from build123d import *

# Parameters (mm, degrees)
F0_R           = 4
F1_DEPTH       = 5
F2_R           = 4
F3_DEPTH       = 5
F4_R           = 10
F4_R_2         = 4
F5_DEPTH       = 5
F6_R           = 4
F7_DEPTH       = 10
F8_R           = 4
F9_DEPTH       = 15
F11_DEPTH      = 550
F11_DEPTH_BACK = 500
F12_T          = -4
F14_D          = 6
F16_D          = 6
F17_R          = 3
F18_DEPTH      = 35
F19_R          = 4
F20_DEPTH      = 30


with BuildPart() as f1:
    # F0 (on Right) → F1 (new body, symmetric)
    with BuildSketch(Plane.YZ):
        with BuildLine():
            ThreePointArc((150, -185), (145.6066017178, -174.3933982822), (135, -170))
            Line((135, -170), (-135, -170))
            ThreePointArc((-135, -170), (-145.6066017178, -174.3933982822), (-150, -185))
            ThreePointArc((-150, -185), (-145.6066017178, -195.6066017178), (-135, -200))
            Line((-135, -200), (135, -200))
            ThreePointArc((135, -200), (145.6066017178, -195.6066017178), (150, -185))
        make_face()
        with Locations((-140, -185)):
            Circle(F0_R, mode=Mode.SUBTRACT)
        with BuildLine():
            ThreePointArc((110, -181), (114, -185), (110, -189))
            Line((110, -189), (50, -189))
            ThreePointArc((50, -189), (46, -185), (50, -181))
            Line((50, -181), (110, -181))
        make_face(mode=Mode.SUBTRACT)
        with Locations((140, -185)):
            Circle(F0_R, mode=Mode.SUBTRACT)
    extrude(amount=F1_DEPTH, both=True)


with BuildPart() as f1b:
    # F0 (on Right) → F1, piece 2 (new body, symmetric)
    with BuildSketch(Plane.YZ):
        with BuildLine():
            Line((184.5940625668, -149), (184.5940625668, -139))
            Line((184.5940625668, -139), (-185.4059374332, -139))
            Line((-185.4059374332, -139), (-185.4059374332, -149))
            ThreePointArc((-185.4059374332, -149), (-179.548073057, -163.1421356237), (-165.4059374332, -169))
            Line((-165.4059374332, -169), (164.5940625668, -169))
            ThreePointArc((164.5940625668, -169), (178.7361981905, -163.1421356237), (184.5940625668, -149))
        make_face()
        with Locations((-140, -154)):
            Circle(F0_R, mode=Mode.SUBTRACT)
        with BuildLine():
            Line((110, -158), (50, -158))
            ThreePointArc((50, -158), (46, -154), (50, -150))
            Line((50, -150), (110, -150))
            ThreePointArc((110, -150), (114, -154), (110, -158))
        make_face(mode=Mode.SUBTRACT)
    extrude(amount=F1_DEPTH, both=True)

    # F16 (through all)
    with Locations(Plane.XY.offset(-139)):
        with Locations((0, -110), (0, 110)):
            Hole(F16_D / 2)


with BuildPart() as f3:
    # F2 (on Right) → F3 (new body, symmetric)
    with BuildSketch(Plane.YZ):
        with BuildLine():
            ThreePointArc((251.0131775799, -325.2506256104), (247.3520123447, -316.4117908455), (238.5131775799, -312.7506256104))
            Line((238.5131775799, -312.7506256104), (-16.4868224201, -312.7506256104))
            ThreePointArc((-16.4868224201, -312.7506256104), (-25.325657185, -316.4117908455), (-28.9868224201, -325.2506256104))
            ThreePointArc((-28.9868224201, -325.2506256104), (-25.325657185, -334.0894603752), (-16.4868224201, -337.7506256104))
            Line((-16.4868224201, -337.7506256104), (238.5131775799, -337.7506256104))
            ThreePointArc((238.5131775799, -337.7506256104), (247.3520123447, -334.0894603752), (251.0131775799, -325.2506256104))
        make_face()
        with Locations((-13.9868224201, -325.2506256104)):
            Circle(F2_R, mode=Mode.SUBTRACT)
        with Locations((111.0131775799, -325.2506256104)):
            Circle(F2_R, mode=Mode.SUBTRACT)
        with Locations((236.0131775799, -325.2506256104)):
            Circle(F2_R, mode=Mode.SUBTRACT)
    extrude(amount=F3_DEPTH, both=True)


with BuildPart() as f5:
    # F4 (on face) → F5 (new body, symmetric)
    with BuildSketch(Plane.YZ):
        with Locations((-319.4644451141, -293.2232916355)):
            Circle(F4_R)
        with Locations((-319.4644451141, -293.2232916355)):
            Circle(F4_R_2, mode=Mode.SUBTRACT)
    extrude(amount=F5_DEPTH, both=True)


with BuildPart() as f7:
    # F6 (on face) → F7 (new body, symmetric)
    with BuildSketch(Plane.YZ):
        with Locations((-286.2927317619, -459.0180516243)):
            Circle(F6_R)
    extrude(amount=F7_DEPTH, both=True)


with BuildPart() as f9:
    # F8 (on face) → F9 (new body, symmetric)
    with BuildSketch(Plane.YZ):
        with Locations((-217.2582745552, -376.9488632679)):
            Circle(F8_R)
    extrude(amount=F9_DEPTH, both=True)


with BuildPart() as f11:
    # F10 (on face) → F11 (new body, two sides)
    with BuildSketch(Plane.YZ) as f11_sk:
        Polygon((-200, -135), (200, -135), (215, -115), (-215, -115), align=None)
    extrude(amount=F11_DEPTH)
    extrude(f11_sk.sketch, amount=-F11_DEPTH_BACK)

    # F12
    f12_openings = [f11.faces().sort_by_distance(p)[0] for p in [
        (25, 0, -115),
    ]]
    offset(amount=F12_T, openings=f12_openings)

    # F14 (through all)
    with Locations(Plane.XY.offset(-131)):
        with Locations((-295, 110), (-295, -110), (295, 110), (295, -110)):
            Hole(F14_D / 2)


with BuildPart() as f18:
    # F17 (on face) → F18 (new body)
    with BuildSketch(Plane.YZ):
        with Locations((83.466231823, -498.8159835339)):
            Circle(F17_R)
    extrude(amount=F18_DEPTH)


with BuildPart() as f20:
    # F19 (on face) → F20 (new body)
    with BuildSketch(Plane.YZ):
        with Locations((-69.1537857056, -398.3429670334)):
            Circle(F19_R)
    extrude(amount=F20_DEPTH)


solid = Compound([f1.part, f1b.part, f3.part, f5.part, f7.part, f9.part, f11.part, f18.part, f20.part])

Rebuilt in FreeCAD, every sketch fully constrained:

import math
import FreeCAD as App
import Part
import Sketcher

V = App.Vector
Q = App.Units.Quantity


def faces_at(feature, points):
    """Names of the faces that lie closest to the given points."""
    faces = feature.Shape.Faces
    near = lambda p: min(range(len(faces)), key=lambda i: faces[i].distToShape(Part.Vertex(*p))[0])
    return sorted({f"Face{near(p) + 1}" for p in points})


def add_polygon(sketch, points):
    """Adds a closed chain of lines whose ends are joined by coincident constraints."""
    first, n = sketch.GeometryCount, len(points)
    for a, b in zip(points, points[1:] + points[:1]):
        sketch.addGeometry(Part.LineSegment(App.Vector(*a, 0), App.Vector(*b, 0)), False)
    for i in range(n):
        sketch.addConstraint(Sketcher.Constraint("Coincident", first + i, 2, first + (i + 1) % n, 1))

doc = App.newDocument("Part")
params = doc.addObject("Spreadsheet::Sheet", "Params")
for row, (alias, value) in enumerate([
    ("sketch1_diameter", "8 mm"),
    ("sketch1_radius", "15 mm"),
    ("sketch1_width", "270 mm"),
    ("sketch1_width2", "60 mm"),
    ("pad1_length", "10 mm"),
    ("sketch2_diameter", "8 mm"),
    ("sketch2_radius", "20 mm"),
    ("sketch2_width", "370 mm"),
    ("sketch2_width2", "60 mm"),
    ("sketch2_height", "10 mm"),
    ("pad2_length", "10 mm"),
    ("sketch3_diameter", "6 mm"),
    ("hole_diameter", "6 mm"),
    ("sketch4_diameter", "8 mm"),
    ("sketch4_radius", "12.5 mm"),
    ("sketch4_width", "255 mm"),
    ("pad3_length", "10 mm"),
    ("sketch5_diameter", "20 mm"),
    ("sketch5_diameter2", "8 mm"),
    ("pad4_length", "10 mm"),
    ("sketch6_diameter", "8 mm"),
    ("pad5_length", "20 mm"),
    ("sketch7_diameter", "8 mm"),
    ("pad6_length", "30 mm"),
    ("sketch8_width", "400 mm"),
    ("sketch8_width2", "430 mm"),
    ("sketch8_length", "25 mm"),
    ("pad7_length", "550 mm"),
    ("pad7_length2", "500 mm"),
    ("thickness_wall", "4 mm"),
    ("sketch9_diameter", "6 mm"),
    ("hole2_diameter", "6 mm"),
    ("sketch10_diameter", "6 mm"),
    ("pad8_length", "35 mm"),
    ("sketch11_diameter", "8 mm"),
    ("pad9_length", "30 mm"),
], start=1):
    params.set(f"A{row}", alias)
    params.set(f"B{row}", "=" + value)
    params.setAlias(f"B{row}", alias)

body = doc.addObject("PartDesign::Body", "Body")

sketch1 = body.newObject("Sketcher::SketchObject", "Sketch")
sketch1.AttachmentSupport = (doc.getObject("YZ_Plane"), [""])
sketch1.MapMode = "FlatFace"
sketch1.addGeometry([
    Part.LineSegment(V(135, -170, 0), V(-135, -170, 0)),
    Part.ArcOfCircle(Part.Circle(V(-135, -185, 0), V(0, 0, 1), 15), math.radians(90), math.radians(270)),
    Part.LineSegment(V(-135, -200, 0), V(135, -200, 0)),
    Part.ArcOfCircle(Part.Circle(V(135, -185, 0), V(0, 0, 1), 15), math.radians(-90), math.radians(90)),
    Part.Circle(V(-140, -185, 0), V(0, 0, 1), 4),
    Part.LineSegment(V(50, -181, 0), V(110, -181, 0)),
    Part.ArcOfCircle(Part.Circle(V(110, -185, 0), V(0, 0, 1), 4), math.radians(-90), math.radians(90)),
    Part.LineSegment(V(110, -189, 0), V(50, -189, 0)),
    Part.ArcOfCircle(Part.Circle(V(50, -185, 0), V(0, 0, 1), 4), math.radians(90), math.radians(270)),
    Part.Circle(V(140, -185, 0), V(0, 0, 1), 4),
], False)
sketch1.addConstraint([
    Sketcher.Constraint("Tangent", 0, 2, 1, 1),
    Sketcher.Constraint("Tangent", 1, 2, 2, 1),
    Sketcher.Constraint("Tangent", 2, 2, 3, 1),
    Sketcher.Constraint("Tangent", 3, 2, 0, 1),
    Sketcher.Constraint("Tangent", 5, 2, 6, 2),
    Sketcher.Constraint("Tangent", 6, 1, 7, 1),
    Sketcher.Constraint("Tangent", 7, 2, 8, 2),
    Sketcher.Constraint("Tangent", 8, 1, 5, 1),
    Sketcher.Constraint("Horizontal", 0),
    Sketcher.Constraint("Horizontal", 2),
    Sketcher.Constraint("Horizontal", 5),
    Sketcher.Constraint("Horizontal", 7),
    Sketcher.Constraint("Equal", 4, 6),
    Sketcher.Constraint("Equal", 8, 9),
    Sketcher.Constraint("Symmetric", 4, 3, 9, 3, -2),
    Sketcher.Constraint("Horizontal", 3, 3, 4, 3),
    Sketcher.Constraint("Horizontal", 4, 3, 6, 3),
    Sketcher.Constraint("Diameter", 4, Q("8 mm")),
    Sketcher.Constraint("Radius", 1, Q("15 mm")),
    Sketcher.Constraint("DistanceX", 0, 2, 0, 1, Q("270 mm")),
    Sketcher.Constraint("DistanceX", 5, 1, 5, 2, Q("60 mm")),
    Sketcher.Constraint("DistanceX", 1, 3, -1, 1, Q("135 mm")),
    Sketcher.Constraint("DistanceY", 1, 3, -1, 1, Q("185 mm")),
    Sketcher.Constraint("DistanceX", 4, 3, -1, 1, Q("140 mm")),
    Sketcher.Constraint("DistanceX", -1, 1, 6, 3, Q("110 mm")),
])
sketch1.setExpression("Constraints[17]", "Params.sketch1_diameter")
sketch1.setExpression("Constraints[18]", "Params.sketch1_radius")
sketch1.setExpression("Constraints[19]", "Params.sketch1_width")
sketch1.setExpression("Constraints[20]", "Params.sketch1_width2")
pad1 = body.newObject("PartDesign::Pad", "Pad")
pad1.Profile = sketch1
pad1.setExpression("Length", "Params.pad1_length")
pad1.Midplane = True
body2 = doc.addObject("PartDesign::Body", "Body001")

sketch2 = body2.newObject("Sketcher::SketchObject", "Sketch001")
sketch2.AttachmentSupport = (doc.getObject("YZ_Plane001"), [""])
sketch2.MapMode = "FlatFace"
sketch2.addGeometry([
    Part.LineSegment(V(184.6, -149, 0), V(184.6, -139, 0)),
    Part.LineSegment(V(184.6, -139, 0), V(-185.4, -139, 0)),
    Part.LineSegment(V(-185.4, -139, 0), V(-185.4, -149, 0)),
    Part.ArcOfCircle(Part.Circle(V(-165.4, -149, 0), V(0, 0, 1), 20), math.radians(180), math.radians(270)),
    Part.LineSegment(V(-165.4, -169, 0), V(164.6, -169, 0)),
    Part.ArcOfCircle(Part.Circle(V(164.6, -149, 0), V(0, 0, 1), 20), math.radians(-90), math.radians(0)),
    Part.Circle(V(-140, -154, 0), V(0, 0, 1), 4),
    Part.ArcOfCircle(Part.Circle(V(110, -154, 0), V(0, 0, 1), 4), math.radians(-90), math.radians(90)),
    Part.LineSegment(V(110, -158, 0), V(50, -158, 0)),
    Part.ArcOfCircle(Part.Circle(V(50, -154, 0), V(0, 0, 1), 4), math.radians(90), math.radians(270)),
    Part.LineSegment(V(50, -150, 0), V(110, -150, 0)),
], False)
sketch2.addConstraint([
    Sketcher.Constraint("Coincident", 0, 2, 1, 1),
    Sketcher.Constraint("Coincident", 1, 2, 2, 1),
    Sketcher.Constraint("Tangent", 2, 2, 3, 1),
    Sketcher.Constraint("Tangent", 3, 2, 4, 1),
    Sketcher.Constraint("Tangent", 4, 2, 5, 1),
    Sketcher.Constraint("Tangent", 5, 2, 0, 1),
    Sketcher.Constraint("Tangent", 7, 1, 8, 1),
    Sketcher.Constraint("Tangent", 8, 2, 9, 2),
    Sketcher.Constraint("Tangent", 9, 1, 10, 1),
    Sketcher.Constraint("Tangent", 10, 2, 7, 2),
    Sketcher.Constraint("Vertical", 0),
    Sketcher.Constraint("Horizontal", 1),
    Sketcher.Constraint("Vertical", 2),
    Sketcher.Constraint("Horizontal", 4),
    Sketcher.Constraint("Horizontal", 8),
    Sketcher.Constraint("Horizontal", 10),
    Sketcher.Constraint("Equal", 3, 5),
    Sketcher.Constraint("Equal", 6, 7),
    Sketcher.Constraint("Horizontal", 6, 3, 7, 3),
    Sketcher.Constraint("Diameter", 6, Q("8 mm")),
    Sketcher.Constraint("Radius", 3, Q("20 mm")),
    Sketcher.Constraint("DistanceX", 1, 2, 1, 1, Q("370 mm")),
    Sketcher.Constraint("DistanceX", 8, 2, 8, 1, Q("60 mm")),
    Sketcher.Constraint("DistanceY", 0, 1, 0, 2, Q("10 mm")),
    Sketcher.Constraint("DistanceY", 3, 3, -1, 1, Q("149 mm")),
    Sketcher.Constraint("DistanceX", 6, 3, -1, 1, Q("140 mm")),
    Sketcher.Constraint("DistanceY", 6, 3, -1, 1, Q("154 mm")),
    Sketcher.Constraint("DistanceX", -1, 1, 7, 3, Q("110 mm")),
    Sketcher.Constraint("DistanceX", 3, 3, -1, 1, Q("165.405937 mm")),
])
sketch2.setExpression("Constraints[19]", "Params.sketch2_diameter")
sketch2.setExpression("Constraints[20]", "Params.sketch2_radius")
sketch2.setExpression("Constraints[21]", "Params.sketch2_width")
sketch2.setExpression("Constraints[22]", "Params.sketch2_width2")
sketch2.setExpression("Constraints[23]", "Params.sketch2_height")
pad2 = body2.newObject("PartDesign::Pad", "Pad001")
pad2.Profile = sketch2
pad2.setExpression("Length", "Params.pad2_length")
pad2.Midplane = True

sketch3 = body2.newObject("Sketcher::SketchObject", "Sketch002")
sketch3.AttachmentSupport = (doc.getObject("XY_Plane001"), [""])
sketch3.MapMode = "FlatFace"
sketch3.AttachmentOffset = App.Placement(V(0, 0, -139), App.Rotation())
sketch3.addGeometry([
    Part.Circle(V(0, -110, 0), V(0, 0, 1), 3),
    Part.Circle(V(0, 110, 0), V(0, 0, 1), 3),
], False)
sketch3.addConstraint([
    Sketcher.Constraint("Equal", 0, 1),
    Sketcher.Constraint("Symmetric", 0, 3, 1, 3, -1, 1),
    Sketcher.Constraint("PointOnObject", 0, 3, -2),
    Sketcher.Constraint("Diameter", 0, Q("6 mm")),
    Sketcher.Constraint("DistanceY", 0, 3, -1, 1, Q("110 mm")),
])
sketch3.setExpression("Constraints[3]", "Params.sketch3_diameter")
doc.recompute()
hole = body2.newObject("PartDesign::Hole", "Hole")
hole.Profile = sketch3
hole.ThreadType = "None"
hole.setExpression("Diameter", "Params.hole_diameter")
hole.DepthType = "ThroughAll"
body3 = doc.addObject("PartDesign::Body", "Body002")

sketch4 = body3.newObject("Sketcher::SketchObject", "Sketch003")
sketch4.AttachmentSupport = (doc.getObject("YZ_Plane002"), [""])
sketch4.MapMode = "FlatFace"
sketch4.addGeometry([
    Part.ArcOfCircle(Part.Circle(V(238.5, -325.3, 0), V(0, 0, 1), 12.5), math.radians(0), math.radians(90)),
    Part.LineSegment(V(238.5, -312.8, 0), V(-16.5, -312.8, 0)),
    Part.ArcOfCircle(Part.Circle(V(-16.5, -325.3, 0), V(0, 0, 1), 12.5), math.radians(90), math.radians(180)),
    Part.ArcOfCircle(Part.Circle(V(-16.5, -325.3, 0), V(0, 0, 1), 12.5), math.radians(180), math.radians(270)),
    Part.LineSegment(V(-16.5, -337.8, 0), V(238.5, -337.8, 0)),
    Part.ArcOfCircle(Part.Circle(V(238.5, -325.3, 0), V(0, 0, 1), 12.5), math.radians(-90), math.radians(0)),
    Part.Circle(V(-14, -325.3, 0), V(0, 0, 1), 4),
    Part.Circle(V(111, -325.3, 0), V(0, 0, 1), 4),
    Part.Circle(V(236, -325.3, 0), V(0, 0, 1), 4),
], False)
sketch4.addConstraint([
    Sketcher.Constraint("Tangent", 0, 2, 1, 1),
    Sketcher.Constraint("Tangent", 1, 2, 2, 1),
    Sketcher.Constraint("Tangent", 2, 2, 3, 1),
    Sketcher.Constraint("Tangent", 3, 2, 4, 1),
    Sketcher.Constraint("Tangent", 4, 2, 5, 1),
    Sketcher.Constraint("Tangent", 5, 2, 0, 1),
    Sketcher.Constraint("Horizontal", 1),
    Sketcher.Constraint("Horizontal", 4),
    Sketcher.Constraint("Equal", 0, 2),
    Sketcher.Constraint("Equal", 2, 3),
    Sketcher.Constraint("Equal", 6, 7),
    Sketcher.Constraint("Equal", 7, 8),
    Sketcher.Constraint("Horizontal", 5, 3, 6, 3),
    Sketcher.Constraint("Horizontal", 6, 3, 7, 3),
    Sketcher.Constraint("Horizontal", 7, 3, 8, 3),
    Sketcher.Constraint("Horizontal", 8, 3, 2, 2),
    Sketcher.Constraint("Horizontal", 2, 2, 5, 2),
    Sketcher.Constraint("Diameter", 6, Q("8 mm")),
    Sketcher.Constraint("Radius", 0, Q("12.5 mm")),
    Sketcher.Constraint("DistanceX", 1, 2, 1, 1, Q("255 mm")),
    Sketcher.Constraint("DistanceX", 6, 3, 7, 3, Q("125 mm")),
    Sketcher.Constraint("DistanceX", 7, 3, 8, 3, Q("125 mm")),
    Sketcher.Constraint("DistanceX", 2, 2, 6, 3, Q("15 mm")),
    Sketcher.Constraint("DistanceX", -1, 1, 0, 3, Q("238.513178 mm")),
    Sketcher.Constraint("DistanceY", 0, 3, -1, 1, Q("325.250626 mm")),
])
sketch4.setExpression("Constraints[17]", "Params.sketch4_diameter")
sketch4.setExpression("Constraints[18]", "Params.sketch4_radius")
sketch4.setExpression("Constraints[19]", "Params.sketch4_width")
pad3 = body3.newObject("PartDesign::Pad", "Pad002")
pad3.Profile = sketch4
pad3.setExpression("Length", "Params.pad3_length")
pad3.Midplane = True
body4 = doc.addObject("PartDesign::Body", "Body003")

sketch5 = body4.newObject("Sketcher::SketchObject", "Sketch004")
sketch5.AttachmentSupport = (doc.getObject("YZ_Plane003"), [""])
sketch5.MapMode = "FlatFace"
sketch5.addGeometry([
    Part.Circle(V(-319.5, -293.2, 0), V(0, 0, 1), 10),
    Part.Circle(V(-319.5, -293.2, 0), V(0, 0, 1), 4),
], False)
sketch5.addConstraint([
    Sketcher.Constraint("Coincident", 1, 3, 0, 3),
    Sketcher.Constraint("Diameter", 0, Q("20 mm")),
    Sketcher.Constraint("Diameter", 1, Q("8 mm")),
    Sketcher.Constraint("DistanceY", 0, 3, -1, 1, Q("293.223292 mm")),
    Sketcher.Constraint("DistanceX", 0, 3, -1, 1, Q("319.464445 mm")),
])
sketch5.setExpression("Constraints[1]", "Params.sketch5_diameter")
sketch5.setExpression("Constraints[2]", "Params.sketch5_diameter2")
pad4 = body4.newObject("PartDesign::Pad", "Pad003")
pad4.Profile = sketch5
pad4.setExpression("Length", "Params.pad4_length")
pad4.Midplane = True
body5 = doc.addObject("PartDesign::Body", "Body004")

sketch6 = body5.newObject("Sketcher::SketchObject", "Sketch005")
sketch6.AttachmentSupport = (doc.getObject("YZ_Plane004"), [""])
sketch6.MapMode = "FlatFace"
sketch6.addGeometry(Part.Circle(V(-286.3, -459, 0), V(0, 0, 1), 4), False)
sketch6.addConstraint([
    Sketcher.Constraint("Diameter", 0, Q("8 mm")),
    Sketcher.Constraint("DistanceX", 0, 3, -1, 1, Q("286.292732 mm")),
    Sketcher.Constraint("DistanceY", 0, 3, -1, 1, Q("459.018052 mm")),
])
sketch6.setExpression("Constraints[0]", "Params.sketch6_diameter")
pad5 = body5.newObject("PartDesign::Pad", "Pad004")
pad5.Profile = sketch6
pad5.setExpression("Length", "Params.pad5_length")
pad5.Midplane = True
body6 = doc.addObject("PartDesign::Body", "Body005")

sketch7 = body6.newObject("Sketcher::SketchObject", "Sketch006")
sketch7.AttachmentSupport = (doc.getObject("YZ_Plane005"), [""])
sketch7.MapMode = "FlatFace"
sketch7.addGeometry(Part.Circle(V(-217.3, -376.9, 0), V(0, 0, 1), 4), False)
sketch7.addConstraint([
    Sketcher.Constraint("Diameter", 0, Q("8 mm")),
    Sketcher.Constraint("DistanceX", 0, 3, -1, 1, Q("217.258275 mm")),
    Sketcher.Constraint("DistanceY", 0, 3, -1, 1, Q("376.948863 mm")),
])
sketch7.setExpression("Constraints[0]", "Params.sketch7_diameter")
pad6 = body6.newObject("PartDesign::Pad", "Pad005")
pad6.Profile = sketch7
pad6.setExpression("Length", "Params.pad6_length")
pad6.Midplane = True
body7 = doc.addObject("PartDesign::Body", "Body006")

sketch8 = body7.newObject("Sketcher::SketchObject", "Sketch007")
sketch8.AttachmentSupport = (doc.getObject("YZ_Plane006"), [""])
sketch8.MapMode = "FlatFace"
add_polygon(sketch8, [(-200, -135), (200, -135), (215, -115), (-215, -115)])
sketch8.addConstraint([
    Sketcher.Constraint("Horizontal", 0),
    Sketcher.Constraint("Horizontal", 2),
    Sketcher.Constraint("Equal", 1, 3),
    Sketcher.Constraint("DistanceX", 0, 1, 0, 2, Q("400 mm")),
    Sketcher.Constraint("DistanceX", 2, 2, 2, 1, Q("430 mm")),
    Sketcher.Constraint("Distance", 1, Q("25 mm")),
    Sketcher.Constraint("DistanceX", -1, 1, 0, 2, Q("200 mm")),
    Sketcher.Constraint("DistanceY", 0, 2, -1, 1, Q("135 mm")),
])
sketch8.setExpression("Constraints[7]", "Params.sketch8_width")
sketch8.setExpression("Constraints[8]", "Params.sketch8_width2")
sketch8.setExpression("Constraints[9]", "Params.sketch8_length")
pad7 = body7.newObject("PartDesign::Pad", "Pad006")
pad7.Profile = sketch8
pad7.Type = "TwoLengths"
pad7.setExpression("Length", "Params.pad7_length")
pad7.setExpression("Length2", "Params.pad7_length2")
doc.recompute()

thickness = body7.newObject("PartDesign::Thickness", "Thickness")
thickness.Base = (pad7, faces_at(pad7, [(25, 0, -115)]))
thickness.setExpression("Value", "Params.thickness_wall")
thickness.Reversed = True
thickness.Join = "Arc"

sketch9 = body7.newObject("Sketcher::SketchObject", "Sketch008")
sketch9.AttachmentSupport = (doc.getObject("XY_Plane006"), [""])
sketch9.MapMode = "FlatFace"
sketch9.AttachmentOffset = App.Placement(V(0, 0, -131), App.Rotation())
sketch9.addGeometry([
    Part.Circle(V(-295, 110, 0), V(0, 0, 1), 3),
    Part.Circle(V(-295, -110, 0), V(0, 0, 1), 3),
    Part.Circle(V(295, 110, 0), V(0, 0, 1), 3),
    Part.Circle(V(295, -110, 0), V(0, 0, 1), 3),
], False)
sketch9.addConstraint([
    Sketcher.Constraint("Equal", 0, 1),
    Sketcher.Constraint("Equal", 1, 2),
    Sketcher.Constraint("Equal", 2, 3),
    Sketcher.Constraint("Symmetric", 1, 3, 2, 3, -1, 1),
    Sketcher.Constraint("Symmetric", 0, 3, 3, 3, -1, 1),
    Sketcher.Constraint("Symmetric", 0, 3, 2, 3, -2),
    Sketcher.Constraint("Diameter", 0, Q("6 mm")),
    Sketcher.Constraint("DistanceX", 0, 3, -1, 1, Q("295 mm")),
    Sketcher.Constraint("DistanceY", -1, 1, 0, 3, Q("110 mm")),
])
sketch9.setExpression("Constraints[6]", "Params.sketch9_diameter")
doc.recompute()
hole2 = body7.newObject("PartDesign::Hole", "Hole001")
hole2.Profile = sketch9
hole2.ThreadType = "None"
hole2.setExpression("Diameter", "Params.hole2_diameter")
hole2.DepthType = "ThroughAll"
body8 = doc.addObject("PartDesign::Body", "Body007")

sketch10 = body8.newObject("Sketcher::SketchObject", "Sketch009")
sketch10.AttachmentSupport = (doc.getObject("YZ_Plane007"), [""])
sketch10.MapMode = "FlatFace"
sketch10.addGeometry(Part.Circle(V(83.5, -498.8, 0), V(0, 0, 1), 3), False)
sketch10.addConstraint([
    Sketcher.Constraint("Diameter", 0, Q("6 mm")),
    Sketcher.Constraint("DistanceX", -1, 1, 0, 3, Q("83.466232 mm")),
    Sketcher.Constraint("DistanceY", 0, 3, -1, 1, Q("498.815984 mm")),
])
sketch10.setExpression("Constraints[0]", "Params.sketch10_diameter")
pad8 = body8.newObject("PartDesign::Pad", "Pad007")
pad8.Profile = sketch10
pad8.setExpression("Length", "Params.pad8_length")
body9 = doc.addObject("PartDesign::Body", "Body008")

sketch11 = body9.newObject("Sketcher::SketchObject", "Sketch010")
sketch11.AttachmentSupport = (doc.getObject("YZ_Plane008"), [""])
sketch11.MapMode = "FlatFace"
sketch11.addGeometry(Part.Circle(V(-69.2, -398.3, 0), V(0, 0, 1), 4), False)
sketch11.addConstraint([
    Sketcher.Constraint("Diameter", 0, Q("8 mm")),
    Sketcher.Constraint("DistanceX", 0, 3, -1, 1, Q("69.153786 mm")),
    Sketcher.Constraint("DistanceY", 0, 3, -1, 1, Q("398.342967 mm")),
])
sketch11.setExpression("Constraints[0]", "Params.sketch11_diameter")
pad9 = body9.newObject("PartDesign::Pad", "Pad008")
pad9.Profile = sketch11
pad9.setExpression("Length", "Params.pad9_length")

doc.recompute()
